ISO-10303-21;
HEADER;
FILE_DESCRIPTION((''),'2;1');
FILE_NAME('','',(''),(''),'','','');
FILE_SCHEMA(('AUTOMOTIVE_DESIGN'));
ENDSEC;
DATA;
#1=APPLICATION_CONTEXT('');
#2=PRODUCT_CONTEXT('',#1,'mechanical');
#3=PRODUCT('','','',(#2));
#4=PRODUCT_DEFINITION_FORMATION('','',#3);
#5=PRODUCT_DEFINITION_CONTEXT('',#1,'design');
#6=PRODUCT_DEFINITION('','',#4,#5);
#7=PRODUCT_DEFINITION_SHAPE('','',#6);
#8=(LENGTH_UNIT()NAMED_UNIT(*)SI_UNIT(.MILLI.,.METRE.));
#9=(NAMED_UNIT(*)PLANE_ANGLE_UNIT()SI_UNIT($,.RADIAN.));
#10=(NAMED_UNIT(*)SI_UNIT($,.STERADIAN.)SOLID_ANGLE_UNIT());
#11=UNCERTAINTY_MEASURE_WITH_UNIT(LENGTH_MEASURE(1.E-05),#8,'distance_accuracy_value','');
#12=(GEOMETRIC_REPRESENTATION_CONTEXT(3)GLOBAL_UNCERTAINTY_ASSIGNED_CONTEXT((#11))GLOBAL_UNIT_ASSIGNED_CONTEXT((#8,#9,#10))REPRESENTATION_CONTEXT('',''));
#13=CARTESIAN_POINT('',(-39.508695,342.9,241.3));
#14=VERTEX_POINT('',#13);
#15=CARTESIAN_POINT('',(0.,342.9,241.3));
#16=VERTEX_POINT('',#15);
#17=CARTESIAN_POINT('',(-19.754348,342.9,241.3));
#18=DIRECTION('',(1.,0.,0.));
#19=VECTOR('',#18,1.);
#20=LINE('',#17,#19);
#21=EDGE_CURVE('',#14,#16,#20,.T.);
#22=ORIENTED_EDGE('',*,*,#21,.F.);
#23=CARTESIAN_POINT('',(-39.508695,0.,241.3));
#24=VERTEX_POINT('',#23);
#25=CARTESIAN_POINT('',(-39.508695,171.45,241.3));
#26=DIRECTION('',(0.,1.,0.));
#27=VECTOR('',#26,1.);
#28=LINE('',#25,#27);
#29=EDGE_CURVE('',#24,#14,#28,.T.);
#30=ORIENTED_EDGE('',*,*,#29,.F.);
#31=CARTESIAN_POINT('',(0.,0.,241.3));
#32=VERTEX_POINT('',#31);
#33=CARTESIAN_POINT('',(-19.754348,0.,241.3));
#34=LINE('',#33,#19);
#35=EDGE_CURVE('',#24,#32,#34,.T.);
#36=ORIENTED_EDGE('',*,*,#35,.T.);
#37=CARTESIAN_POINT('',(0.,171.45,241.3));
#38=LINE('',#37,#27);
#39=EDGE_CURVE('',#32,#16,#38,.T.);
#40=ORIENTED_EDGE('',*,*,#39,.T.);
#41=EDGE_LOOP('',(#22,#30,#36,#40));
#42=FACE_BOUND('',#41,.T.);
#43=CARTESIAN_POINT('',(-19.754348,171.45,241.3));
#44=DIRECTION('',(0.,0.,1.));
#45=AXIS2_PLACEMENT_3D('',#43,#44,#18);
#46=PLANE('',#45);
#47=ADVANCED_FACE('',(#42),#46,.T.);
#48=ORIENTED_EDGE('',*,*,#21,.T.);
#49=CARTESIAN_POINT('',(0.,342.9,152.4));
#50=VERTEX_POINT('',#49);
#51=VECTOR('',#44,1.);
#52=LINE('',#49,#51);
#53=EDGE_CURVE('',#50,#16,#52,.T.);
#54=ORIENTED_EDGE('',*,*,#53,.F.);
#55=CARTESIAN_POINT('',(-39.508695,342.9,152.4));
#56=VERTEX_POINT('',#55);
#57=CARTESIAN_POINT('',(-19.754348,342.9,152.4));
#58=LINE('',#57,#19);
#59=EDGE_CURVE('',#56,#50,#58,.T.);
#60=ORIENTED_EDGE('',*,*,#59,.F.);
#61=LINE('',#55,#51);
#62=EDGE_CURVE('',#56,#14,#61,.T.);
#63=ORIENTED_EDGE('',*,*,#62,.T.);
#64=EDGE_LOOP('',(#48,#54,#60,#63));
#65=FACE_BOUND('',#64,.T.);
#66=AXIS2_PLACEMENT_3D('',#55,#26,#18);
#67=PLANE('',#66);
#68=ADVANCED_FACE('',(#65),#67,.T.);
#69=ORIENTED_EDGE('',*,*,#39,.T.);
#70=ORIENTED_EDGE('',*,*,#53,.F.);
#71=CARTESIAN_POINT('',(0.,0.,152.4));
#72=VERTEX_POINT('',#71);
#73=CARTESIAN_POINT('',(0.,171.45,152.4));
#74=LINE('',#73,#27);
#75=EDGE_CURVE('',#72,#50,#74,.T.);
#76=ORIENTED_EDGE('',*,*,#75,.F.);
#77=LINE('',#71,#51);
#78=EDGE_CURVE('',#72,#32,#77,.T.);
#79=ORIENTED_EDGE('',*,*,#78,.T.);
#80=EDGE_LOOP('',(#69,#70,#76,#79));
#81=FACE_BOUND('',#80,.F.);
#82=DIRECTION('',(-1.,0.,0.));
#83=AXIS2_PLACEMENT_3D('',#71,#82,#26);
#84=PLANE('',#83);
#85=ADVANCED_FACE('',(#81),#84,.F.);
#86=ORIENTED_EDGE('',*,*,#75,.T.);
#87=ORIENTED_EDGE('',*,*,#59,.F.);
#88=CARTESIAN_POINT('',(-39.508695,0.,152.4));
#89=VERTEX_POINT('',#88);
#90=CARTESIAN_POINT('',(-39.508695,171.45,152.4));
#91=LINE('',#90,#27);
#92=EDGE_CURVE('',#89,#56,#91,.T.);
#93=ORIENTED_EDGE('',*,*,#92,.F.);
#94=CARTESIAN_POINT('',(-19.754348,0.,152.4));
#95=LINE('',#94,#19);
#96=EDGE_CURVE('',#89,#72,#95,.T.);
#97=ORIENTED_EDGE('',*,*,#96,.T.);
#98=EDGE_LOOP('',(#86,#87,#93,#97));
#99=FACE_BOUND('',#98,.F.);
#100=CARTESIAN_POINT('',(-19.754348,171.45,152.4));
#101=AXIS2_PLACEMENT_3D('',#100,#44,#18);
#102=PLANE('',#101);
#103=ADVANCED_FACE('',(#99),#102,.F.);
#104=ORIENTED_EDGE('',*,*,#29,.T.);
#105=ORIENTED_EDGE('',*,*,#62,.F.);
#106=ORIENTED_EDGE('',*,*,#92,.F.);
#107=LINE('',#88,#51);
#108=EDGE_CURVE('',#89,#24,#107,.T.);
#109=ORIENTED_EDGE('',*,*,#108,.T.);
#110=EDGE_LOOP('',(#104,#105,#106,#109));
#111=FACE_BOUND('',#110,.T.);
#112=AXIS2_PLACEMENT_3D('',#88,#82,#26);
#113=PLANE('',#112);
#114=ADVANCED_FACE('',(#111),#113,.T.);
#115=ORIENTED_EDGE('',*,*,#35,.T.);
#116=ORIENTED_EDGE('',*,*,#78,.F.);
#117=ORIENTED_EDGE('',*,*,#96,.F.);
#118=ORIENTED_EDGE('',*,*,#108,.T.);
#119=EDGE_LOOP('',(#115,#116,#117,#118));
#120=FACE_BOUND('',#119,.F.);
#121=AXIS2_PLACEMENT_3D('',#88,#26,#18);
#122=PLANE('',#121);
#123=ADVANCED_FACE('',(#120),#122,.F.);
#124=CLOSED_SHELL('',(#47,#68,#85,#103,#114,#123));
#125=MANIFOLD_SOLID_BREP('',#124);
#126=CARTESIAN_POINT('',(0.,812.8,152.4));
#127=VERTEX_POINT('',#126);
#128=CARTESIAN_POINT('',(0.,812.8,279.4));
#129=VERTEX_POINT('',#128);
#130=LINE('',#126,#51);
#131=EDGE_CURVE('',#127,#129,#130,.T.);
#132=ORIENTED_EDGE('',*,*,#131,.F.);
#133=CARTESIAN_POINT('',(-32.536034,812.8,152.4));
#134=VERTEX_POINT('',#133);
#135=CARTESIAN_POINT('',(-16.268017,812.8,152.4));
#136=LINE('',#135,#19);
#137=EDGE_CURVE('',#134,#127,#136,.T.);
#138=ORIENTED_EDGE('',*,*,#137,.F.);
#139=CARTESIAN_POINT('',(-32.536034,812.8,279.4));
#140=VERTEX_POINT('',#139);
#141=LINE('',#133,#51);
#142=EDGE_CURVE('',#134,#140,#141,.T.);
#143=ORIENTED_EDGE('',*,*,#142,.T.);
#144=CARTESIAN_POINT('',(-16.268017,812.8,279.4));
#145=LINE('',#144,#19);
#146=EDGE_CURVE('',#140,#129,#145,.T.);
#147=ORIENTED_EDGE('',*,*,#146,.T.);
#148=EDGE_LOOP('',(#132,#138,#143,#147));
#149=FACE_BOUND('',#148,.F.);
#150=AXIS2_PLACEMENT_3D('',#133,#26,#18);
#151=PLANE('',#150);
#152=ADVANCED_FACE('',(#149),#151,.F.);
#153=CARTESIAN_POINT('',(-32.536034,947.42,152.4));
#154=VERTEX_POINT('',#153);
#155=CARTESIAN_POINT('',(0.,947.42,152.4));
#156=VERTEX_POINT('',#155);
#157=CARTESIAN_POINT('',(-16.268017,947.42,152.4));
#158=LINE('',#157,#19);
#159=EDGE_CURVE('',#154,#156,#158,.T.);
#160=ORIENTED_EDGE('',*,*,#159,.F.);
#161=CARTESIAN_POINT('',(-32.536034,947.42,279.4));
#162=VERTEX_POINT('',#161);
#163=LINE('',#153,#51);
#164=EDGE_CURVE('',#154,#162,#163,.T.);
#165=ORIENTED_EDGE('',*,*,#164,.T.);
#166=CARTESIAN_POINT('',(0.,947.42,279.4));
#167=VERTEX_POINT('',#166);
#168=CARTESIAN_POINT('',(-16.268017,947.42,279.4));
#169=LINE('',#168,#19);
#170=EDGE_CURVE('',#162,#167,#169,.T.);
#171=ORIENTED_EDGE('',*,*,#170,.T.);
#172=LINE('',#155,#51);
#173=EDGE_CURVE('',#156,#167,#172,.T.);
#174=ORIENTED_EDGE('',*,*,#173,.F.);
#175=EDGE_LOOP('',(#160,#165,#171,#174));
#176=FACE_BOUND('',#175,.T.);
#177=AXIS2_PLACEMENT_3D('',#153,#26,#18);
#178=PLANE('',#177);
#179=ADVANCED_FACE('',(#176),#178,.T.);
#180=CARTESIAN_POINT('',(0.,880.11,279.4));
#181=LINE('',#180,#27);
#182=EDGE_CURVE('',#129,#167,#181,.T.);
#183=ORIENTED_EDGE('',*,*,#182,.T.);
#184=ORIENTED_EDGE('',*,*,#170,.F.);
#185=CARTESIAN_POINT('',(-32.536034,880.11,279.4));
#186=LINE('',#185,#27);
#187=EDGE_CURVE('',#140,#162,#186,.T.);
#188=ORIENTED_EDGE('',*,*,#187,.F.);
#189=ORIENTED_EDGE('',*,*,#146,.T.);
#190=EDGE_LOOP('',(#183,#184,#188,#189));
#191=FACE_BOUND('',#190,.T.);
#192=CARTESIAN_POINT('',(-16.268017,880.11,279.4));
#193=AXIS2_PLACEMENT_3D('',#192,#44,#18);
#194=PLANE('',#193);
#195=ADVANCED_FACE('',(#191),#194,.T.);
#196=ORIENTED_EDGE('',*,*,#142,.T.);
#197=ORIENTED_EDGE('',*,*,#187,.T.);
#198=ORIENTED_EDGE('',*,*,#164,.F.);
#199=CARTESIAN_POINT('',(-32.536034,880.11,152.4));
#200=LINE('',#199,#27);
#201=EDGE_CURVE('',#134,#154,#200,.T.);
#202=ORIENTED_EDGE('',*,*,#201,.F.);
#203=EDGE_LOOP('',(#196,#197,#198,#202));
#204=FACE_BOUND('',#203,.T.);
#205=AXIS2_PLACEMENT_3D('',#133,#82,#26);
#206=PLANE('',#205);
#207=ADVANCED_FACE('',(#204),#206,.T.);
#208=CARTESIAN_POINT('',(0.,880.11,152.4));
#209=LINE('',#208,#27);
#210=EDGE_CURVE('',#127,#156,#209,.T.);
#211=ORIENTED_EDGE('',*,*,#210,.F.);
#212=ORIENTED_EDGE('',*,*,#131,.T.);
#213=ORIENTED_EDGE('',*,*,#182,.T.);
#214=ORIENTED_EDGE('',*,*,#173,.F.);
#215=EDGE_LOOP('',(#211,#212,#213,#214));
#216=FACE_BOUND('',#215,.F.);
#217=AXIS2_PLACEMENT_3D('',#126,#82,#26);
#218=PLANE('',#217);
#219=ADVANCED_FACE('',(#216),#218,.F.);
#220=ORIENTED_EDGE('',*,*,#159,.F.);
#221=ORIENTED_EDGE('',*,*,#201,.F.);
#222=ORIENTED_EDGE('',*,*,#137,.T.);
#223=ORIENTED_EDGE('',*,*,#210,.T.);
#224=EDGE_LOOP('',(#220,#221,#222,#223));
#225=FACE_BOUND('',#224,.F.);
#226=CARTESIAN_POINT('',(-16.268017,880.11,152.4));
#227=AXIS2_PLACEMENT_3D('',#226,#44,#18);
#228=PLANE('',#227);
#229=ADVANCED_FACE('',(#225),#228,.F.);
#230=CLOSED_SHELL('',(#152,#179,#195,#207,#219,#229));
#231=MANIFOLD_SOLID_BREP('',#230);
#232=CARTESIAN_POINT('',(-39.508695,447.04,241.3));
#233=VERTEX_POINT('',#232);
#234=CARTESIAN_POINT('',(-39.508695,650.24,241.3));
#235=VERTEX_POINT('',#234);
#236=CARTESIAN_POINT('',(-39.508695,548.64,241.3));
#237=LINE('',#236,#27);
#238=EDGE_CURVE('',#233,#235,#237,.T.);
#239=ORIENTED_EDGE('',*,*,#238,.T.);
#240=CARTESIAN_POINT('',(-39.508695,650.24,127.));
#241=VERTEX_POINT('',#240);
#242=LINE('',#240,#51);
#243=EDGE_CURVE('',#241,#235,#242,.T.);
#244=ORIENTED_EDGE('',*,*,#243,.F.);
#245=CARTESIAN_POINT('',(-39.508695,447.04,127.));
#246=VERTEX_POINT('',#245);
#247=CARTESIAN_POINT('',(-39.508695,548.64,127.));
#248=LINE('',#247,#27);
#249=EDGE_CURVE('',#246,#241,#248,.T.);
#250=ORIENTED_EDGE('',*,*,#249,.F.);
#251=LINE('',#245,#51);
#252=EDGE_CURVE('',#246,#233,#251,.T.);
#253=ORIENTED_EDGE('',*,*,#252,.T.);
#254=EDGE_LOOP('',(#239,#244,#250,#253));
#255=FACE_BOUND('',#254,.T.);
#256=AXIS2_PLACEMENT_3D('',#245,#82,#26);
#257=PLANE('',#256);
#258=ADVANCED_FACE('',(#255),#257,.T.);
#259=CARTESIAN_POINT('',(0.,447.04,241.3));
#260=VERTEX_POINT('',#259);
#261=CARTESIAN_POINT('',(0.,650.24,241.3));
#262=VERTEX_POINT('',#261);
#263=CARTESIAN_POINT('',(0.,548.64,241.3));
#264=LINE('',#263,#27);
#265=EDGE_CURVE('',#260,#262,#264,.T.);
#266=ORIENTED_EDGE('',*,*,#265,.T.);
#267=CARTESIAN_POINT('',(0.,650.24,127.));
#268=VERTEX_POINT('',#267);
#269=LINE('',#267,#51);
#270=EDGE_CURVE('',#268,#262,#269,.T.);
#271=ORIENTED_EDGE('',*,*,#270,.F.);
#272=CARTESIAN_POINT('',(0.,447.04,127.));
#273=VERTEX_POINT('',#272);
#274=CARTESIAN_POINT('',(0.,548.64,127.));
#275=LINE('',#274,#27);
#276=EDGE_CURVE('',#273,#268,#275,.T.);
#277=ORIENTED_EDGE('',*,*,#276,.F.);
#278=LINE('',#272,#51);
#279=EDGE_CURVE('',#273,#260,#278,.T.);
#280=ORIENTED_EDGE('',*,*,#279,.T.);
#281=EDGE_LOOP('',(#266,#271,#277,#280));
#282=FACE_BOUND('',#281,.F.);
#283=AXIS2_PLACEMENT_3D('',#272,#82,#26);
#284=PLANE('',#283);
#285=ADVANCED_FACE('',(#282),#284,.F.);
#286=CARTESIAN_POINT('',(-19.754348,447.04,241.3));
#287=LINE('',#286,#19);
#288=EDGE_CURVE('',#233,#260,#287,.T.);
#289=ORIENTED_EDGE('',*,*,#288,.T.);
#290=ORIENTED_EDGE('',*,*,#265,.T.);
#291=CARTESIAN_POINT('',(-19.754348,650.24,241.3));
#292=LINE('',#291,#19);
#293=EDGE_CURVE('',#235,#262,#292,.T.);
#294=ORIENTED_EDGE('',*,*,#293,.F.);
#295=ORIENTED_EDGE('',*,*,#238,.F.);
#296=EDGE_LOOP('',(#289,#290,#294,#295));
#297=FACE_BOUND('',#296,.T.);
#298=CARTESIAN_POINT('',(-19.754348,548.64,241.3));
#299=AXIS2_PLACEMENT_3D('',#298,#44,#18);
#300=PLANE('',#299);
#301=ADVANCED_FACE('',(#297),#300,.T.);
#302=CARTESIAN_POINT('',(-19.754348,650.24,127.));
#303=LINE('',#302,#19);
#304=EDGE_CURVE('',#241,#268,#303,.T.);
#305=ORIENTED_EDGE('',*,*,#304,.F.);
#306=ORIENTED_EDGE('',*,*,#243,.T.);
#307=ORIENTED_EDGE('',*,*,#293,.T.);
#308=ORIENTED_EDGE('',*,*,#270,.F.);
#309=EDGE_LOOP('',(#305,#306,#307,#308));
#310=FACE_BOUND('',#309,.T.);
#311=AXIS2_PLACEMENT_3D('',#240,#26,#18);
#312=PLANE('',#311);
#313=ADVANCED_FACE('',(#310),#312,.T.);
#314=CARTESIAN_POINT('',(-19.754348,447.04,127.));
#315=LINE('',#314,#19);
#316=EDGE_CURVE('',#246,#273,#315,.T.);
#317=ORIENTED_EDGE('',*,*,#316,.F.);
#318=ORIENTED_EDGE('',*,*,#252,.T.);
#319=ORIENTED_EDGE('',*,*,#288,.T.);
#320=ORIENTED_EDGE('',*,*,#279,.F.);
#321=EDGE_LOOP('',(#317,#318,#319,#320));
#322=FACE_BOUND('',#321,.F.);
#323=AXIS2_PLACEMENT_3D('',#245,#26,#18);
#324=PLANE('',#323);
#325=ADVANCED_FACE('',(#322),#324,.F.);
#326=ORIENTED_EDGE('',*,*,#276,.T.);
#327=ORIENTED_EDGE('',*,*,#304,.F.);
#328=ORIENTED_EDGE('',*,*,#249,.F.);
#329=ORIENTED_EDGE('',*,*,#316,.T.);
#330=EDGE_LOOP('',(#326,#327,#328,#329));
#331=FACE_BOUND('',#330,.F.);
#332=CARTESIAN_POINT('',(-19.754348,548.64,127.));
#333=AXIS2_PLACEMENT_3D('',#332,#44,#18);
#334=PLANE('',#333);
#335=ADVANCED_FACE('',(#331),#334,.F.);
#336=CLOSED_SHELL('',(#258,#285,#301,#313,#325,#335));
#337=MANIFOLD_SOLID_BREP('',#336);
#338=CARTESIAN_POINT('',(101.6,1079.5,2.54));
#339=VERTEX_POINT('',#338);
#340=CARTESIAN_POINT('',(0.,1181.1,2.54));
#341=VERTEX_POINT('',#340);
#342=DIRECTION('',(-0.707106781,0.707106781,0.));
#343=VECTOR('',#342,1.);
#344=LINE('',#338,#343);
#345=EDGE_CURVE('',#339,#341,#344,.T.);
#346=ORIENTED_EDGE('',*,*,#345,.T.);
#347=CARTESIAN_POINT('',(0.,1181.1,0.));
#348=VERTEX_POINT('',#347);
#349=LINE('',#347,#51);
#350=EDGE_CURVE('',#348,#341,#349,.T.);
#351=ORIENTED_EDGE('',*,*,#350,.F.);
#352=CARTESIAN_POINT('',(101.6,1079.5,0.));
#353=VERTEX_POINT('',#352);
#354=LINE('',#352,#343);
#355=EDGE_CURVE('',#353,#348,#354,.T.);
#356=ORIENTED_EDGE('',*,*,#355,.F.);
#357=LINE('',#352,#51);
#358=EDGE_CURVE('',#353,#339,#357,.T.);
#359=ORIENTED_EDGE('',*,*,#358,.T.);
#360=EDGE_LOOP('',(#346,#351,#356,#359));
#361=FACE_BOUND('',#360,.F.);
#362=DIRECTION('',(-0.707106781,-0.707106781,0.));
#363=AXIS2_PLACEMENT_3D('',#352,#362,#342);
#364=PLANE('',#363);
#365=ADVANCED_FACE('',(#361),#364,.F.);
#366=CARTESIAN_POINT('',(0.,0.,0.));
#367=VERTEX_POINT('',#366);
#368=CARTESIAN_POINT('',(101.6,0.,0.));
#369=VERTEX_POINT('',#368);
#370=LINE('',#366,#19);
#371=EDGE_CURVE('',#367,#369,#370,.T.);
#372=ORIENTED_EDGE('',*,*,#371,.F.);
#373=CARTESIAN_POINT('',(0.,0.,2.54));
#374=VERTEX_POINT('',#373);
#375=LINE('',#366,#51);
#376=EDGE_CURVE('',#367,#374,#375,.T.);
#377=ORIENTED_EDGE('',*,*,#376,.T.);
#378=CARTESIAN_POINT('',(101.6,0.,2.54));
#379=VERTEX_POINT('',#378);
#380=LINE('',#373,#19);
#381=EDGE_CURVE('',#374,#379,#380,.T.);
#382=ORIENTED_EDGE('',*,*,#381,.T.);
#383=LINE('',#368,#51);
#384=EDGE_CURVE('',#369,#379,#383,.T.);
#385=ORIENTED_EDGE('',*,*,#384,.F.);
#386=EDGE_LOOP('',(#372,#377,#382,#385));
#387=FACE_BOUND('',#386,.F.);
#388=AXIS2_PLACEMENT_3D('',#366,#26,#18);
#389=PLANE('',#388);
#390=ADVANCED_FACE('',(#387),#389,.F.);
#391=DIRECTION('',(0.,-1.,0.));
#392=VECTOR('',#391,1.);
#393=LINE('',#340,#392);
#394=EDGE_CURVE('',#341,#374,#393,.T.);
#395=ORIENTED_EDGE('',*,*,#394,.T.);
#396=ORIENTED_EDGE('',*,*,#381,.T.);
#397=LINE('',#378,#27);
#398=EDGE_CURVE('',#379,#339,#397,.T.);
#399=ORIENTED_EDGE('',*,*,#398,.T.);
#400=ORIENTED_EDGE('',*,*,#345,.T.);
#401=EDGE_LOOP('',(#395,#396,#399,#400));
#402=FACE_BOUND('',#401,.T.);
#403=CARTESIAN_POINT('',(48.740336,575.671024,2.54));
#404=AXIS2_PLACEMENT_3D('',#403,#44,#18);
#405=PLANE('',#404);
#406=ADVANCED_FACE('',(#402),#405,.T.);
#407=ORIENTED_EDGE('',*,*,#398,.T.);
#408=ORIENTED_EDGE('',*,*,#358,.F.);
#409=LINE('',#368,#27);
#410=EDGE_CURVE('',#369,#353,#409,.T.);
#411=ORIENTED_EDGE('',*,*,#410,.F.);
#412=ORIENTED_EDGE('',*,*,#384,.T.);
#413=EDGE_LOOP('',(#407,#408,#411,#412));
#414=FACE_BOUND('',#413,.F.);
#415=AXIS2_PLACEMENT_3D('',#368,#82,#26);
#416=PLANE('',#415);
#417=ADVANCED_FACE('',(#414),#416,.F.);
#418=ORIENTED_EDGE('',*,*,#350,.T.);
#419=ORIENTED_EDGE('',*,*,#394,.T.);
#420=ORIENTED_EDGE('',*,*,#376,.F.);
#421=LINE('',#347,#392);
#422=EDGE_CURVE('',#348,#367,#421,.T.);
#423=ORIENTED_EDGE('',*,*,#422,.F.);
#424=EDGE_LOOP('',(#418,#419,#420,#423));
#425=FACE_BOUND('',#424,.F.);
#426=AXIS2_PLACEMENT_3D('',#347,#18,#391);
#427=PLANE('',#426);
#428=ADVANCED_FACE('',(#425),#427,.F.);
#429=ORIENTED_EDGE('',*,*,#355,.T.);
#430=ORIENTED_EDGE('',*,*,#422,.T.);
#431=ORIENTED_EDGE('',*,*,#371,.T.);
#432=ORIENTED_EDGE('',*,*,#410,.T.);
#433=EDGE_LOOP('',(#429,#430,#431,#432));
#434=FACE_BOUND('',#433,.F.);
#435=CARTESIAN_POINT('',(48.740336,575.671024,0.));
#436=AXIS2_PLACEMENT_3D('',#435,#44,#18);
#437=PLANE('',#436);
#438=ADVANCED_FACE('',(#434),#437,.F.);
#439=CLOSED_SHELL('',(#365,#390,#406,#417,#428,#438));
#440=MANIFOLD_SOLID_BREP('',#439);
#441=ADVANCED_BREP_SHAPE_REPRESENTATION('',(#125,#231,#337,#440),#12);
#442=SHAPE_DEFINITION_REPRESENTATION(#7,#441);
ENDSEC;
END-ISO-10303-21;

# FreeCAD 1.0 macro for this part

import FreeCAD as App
import Part
import Sketcher
from FreeCAD import Vector
Q = App.Units.Quantity

doc = App.newDocument("Part")
body = doc.addObject("PartDesign::Body", "Body")

sketch1 = body.newObject("Sketcher::SketchObject", "Sketch")
sketch1.AttachmentSupport = (doc.getObject("XY_Plane"), [""])
sketch1.MapMode = "FlatFace"
sketch1.addGeometry([
    Part.LineSegment(Vector(102, 1080, 0), Vector(0, 1181, 0)),
    Part.LineSegment(Vector(0, 1181, 0), Vector(0, 0, 0)),
    Part.LineSegment(Vector(0, 0, 0), Vector(102, 0, 0)),
    Part.LineSegment(Vector(102, 0, 0), Vector(102, 1080, 0)),
], False)
sketch1.addConstraint([
    Sketcher.Constraint("Coincident", 0, 2, 1, 1),
    Sketcher.Constraint("Coincident", 1, 2, 2, 1),
    Sketcher.Constraint("Coincident", 2, 2, 3, 1),
    Sketcher.Constraint("Coincident", 3, 2, 0, 1),
    Sketcher.Constraint("Vertical", 1),
    Sketcher.Constraint("Horizontal", 2),
    Sketcher.Constraint("Vertical", 3),
    Sketcher.Constraint("Coincident", 1, 2, -1, 1),
    Sketcher.Constraint("DistanceX", 2, 1, 2, 2, Q("4 in")),
    Sketcher.Constraint("DistanceY", 1, 2, 1, 1, Q("46.5 in")),
    Sketcher.Constraint("DistanceY", 3, 1, 3, 2, Q("42.5 in")),
])
pad1 = body.newObject("PartDesign::Pad", "Pad")
pad1.Profile = sketch1
pad1.Length = Q("0.1 in")
body2 = doc.addObject("PartDesign::Body", "Body001")

sketch2 = body2.newObject("Sketcher::SketchObject", "Sketch001")
sketch2.AttachmentSupport = (doc.getObject("XY_Plane001"), [""])
sketch2.MapMode = "FlatFace"
sketch2.AttachmentOffset = App.Placement(Vector(0, 0, 6 * 25.4), App.Rotation())
sketch2.addGeometry([
    Part.LineSegment(Vector(-40, 343, 0), Vector(-40, 0, 0)),
    Part.LineSegment(Vector(-40, 0, 0), Vector(0, 0, 0)),
    Part.LineSegment(Vector(0, 0, 0), Vector(0, 343, 0)),
    Part.LineSegment(Vector(0, 343, 0), Vector(-40, 343, 0)),
], False)
sketch2.addConstraint([
    Sketcher.Constraint("Coincident", 0, 2, 1, 1),
    Sketcher.Constraint("Coincident", 1, 2, 2, 1),
    Sketcher.Constraint("Coincident", 2, 2, 3, 1),
    Sketcher.Constraint("Coincident", 3, 2, 0, 1),
    Sketcher.Constraint("Vertical", 0),
    Sketcher.Constraint("Horizontal", 1),
    Sketcher.Constraint("Vertical", 2),
    Sketcher.Constraint("Horizontal", 3),
    Sketcher.Constraint("Coincident", 1, 2, -1, 1),
    Sketcher.Constraint("DistanceY", 0, 2, 0, 1, Q("13.5 in")),
    Sketcher.Constraint("DistanceX", 1, 1, 1, 2, Q("39.508695 mm")),
])
pad2 = body2.newObject("PartDesign::Pad", "Pad001")
pad2.Profile = sketch2
pad2.Length = Q("3.5 in")
body3 = doc.addObject("PartDesign::Body", "Body002")

sketch3 = body3.newObject("Sketcher::SketchObject", "Sketch002")
sketch3.AttachmentSupport = (doc.getObject("XY_Plane002"), [""])
sketch3.MapMode = "FlatFace"
sketch3.AttachmentOffset = App.Placement(Vector(0, 0, 5 * 25.4), App.Rotation())
sketch3.addGeometry([
    Part.LineSegment(Vector(-40, 650, 0), Vector(-40, 447, 0)),
    Part.LineSegment(Vector(-40, 447, 0), Vector(0, 447, 0)),
    Part.LineSegment(Vector(0, 447, 0), Vector(0, 650, 0)),
    Part.LineSegment(Vector(0, 650, 0), Vector(-40, 650, 0)),
], False)
sketch3.addConstraint([
    Sketcher.Constraint("Coincident", 0, 2, 1, 1),
    Sketcher.Constraint("Coincident", 1, 2, 2, 1),
    Sketcher.Constraint("Coincident", 2, 2, 3, 1),
    Sketcher.Constraint("Coincident", 3, 2, 0, 1),
    Sketcher.Constraint("Vertical", 0),
    Sketcher.Constraint("Horizontal", 1),
    Sketcher.Constraint("Vertical", 2),
    Sketcher.Constraint("Horizontal", 3),
    Sketcher.Constraint("PointOnObject", 1, 2, -2),
    Sketcher.Constraint("DistanceY", 0, 2, 0, 1, Q("8 in")),
    Sketcher.Constraint("DistanceY", -1, 1, 0, 2, Q("17.6 in")),
    Sketcher.Constraint("DistanceX", 1, 1, 1, 2, Q("39.508695 mm")),
])
pad3 = body3.newObject("PartDesign::Pad", "Pad002")
pad3.Profile = sketch3
pad3.Length = Q("4.5 in")
body4 = doc.addObject("PartDesign::Body", "Body003")

sketch4 = body4.newObject("Sketcher::SketchObject", "Sketch003")
sketch4.AttachmentSupport = (doc.getObject("XY_Plane003"), [""])
sketch4.MapMode = "FlatFace"
sketch4.AttachmentOffset = App.Placement(Vector(0, 0, 6 * 25.4), App.Rotation())
sketch4.addGeometry([
    Part.LineSegment(Vector(-33, 947, 0), Vector(-33, 813, 0)),
    Part.LineSegment(Vector(-33, 813, 0), Vector(0, 813, 0)),
    Part.LineSegment(Vector(0, 813, 0), Vector(0, 947, 0)),
    Part.LineSegment(Vector(0, 947, 0), Vector(-33, 947, 0)),
], False)
sketch4.addConstraint([
    Sketcher.Constraint("Coincident", 0, 2, 1, 1),
    Sketcher.Constraint("Coincident", 1, 2, 2, 1),
    Sketcher.Constraint("Coincident", 2, 2, 3, 1),
    Sketcher.Constraint("Coincident", 3, 2, 0, 1),
    Sketcher.Constraint("Vertical", 0),
    Sketcher.Constraint("Horizontal", 1),
    Sketcher.Constraint("Vertical", 2),
    Sketcher.Constraint("Horizontal", 3),
    Sketcher.Constraint("PointOnObject", 1, 2, -2),
    Sketcher.Constraint("DistanceY", 0, 2, 0, 1, Q("5.3 in")),
    Sketcher.Constraint("DistanceY", -1, 1, 0, 2, Q("32 in")),
    Sketcher.Constraint("DistanceX", 1, 1, 1, 2, Q("32.536034 mm")),
])
pad4 = body4.newObject("PartDesign::Pad", "Pad003")
pad4.Profile = sketch4
pad4.Length = Q("5 in")

doc.recompute()
